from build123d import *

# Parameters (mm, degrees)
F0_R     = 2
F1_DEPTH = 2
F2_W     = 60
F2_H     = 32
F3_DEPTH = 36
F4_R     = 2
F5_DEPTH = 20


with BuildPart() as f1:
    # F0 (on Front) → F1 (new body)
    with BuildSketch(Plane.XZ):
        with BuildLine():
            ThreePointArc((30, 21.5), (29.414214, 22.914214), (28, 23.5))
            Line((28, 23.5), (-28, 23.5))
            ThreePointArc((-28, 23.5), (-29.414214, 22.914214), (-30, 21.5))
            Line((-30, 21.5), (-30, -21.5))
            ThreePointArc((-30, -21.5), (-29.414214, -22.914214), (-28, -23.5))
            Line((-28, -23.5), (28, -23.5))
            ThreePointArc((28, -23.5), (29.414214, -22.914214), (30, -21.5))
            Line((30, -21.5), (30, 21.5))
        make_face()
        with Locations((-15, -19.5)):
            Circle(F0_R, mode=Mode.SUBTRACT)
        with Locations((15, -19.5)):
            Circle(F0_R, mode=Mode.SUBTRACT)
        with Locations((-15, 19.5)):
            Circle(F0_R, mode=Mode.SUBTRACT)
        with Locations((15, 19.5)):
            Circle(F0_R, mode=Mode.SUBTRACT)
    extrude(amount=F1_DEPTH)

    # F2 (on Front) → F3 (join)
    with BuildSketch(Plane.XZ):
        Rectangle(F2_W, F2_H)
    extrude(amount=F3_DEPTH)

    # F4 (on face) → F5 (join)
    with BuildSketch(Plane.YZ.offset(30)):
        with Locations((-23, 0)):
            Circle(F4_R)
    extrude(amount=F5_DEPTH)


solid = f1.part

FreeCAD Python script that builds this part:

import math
import FreeCAD as App
import Part
import Sketcher

V = App.Vector


def add_polygon(sketch, points):
    """Adds a closed chain of lines whose ends are joined by coincident constraints."""
    first, n = sketch.GeometryCount, len(points)
    for a, b in zip(points, points[1:] + points[:1]):
        sketch.addGeometry(Part.LineSegment(App.Vector(*a, 0), App.Vector(*b, 0)), False)
    for i in range(n):
        sketch.addConstraint(Sketcher.Constraint("Coincident", first + i, 2, first + (i + 1) % n, 1))

doc = App.newDocument("Part")
body = doc.addObject("PartDesign::Body", "Body")

sketch1 = body.newObject("Sketcher::SketchObject", "Sketch")
sketch1.AttachmentSupport = (doc.getObject("XZ_Plane"), [""])
sketch1.MapMode = "FlatFace"
sketch1.addGeometry([
    Part.ArcOfCircle(Part.Circle(V(28.000001, 21.500001, 0), V(0, 0, 1), 1.999999), math.radians(-0.000043), math.radians(90.000043)),
    Part.LineSegment(V(28, 23.5, 0), V(-28, 23.5, 0)),
    Part.ArcOfCircle(Part.Circle(V(-28.000001, 21.500001, 0), V(0, 0, 1), 1.999999), math.radians(89.999957), math.radians(180.000043)),
    Part.LineSegment(V(-30, 21.5, 0), V(-30, -21.5, 0)),
    Part.ArcOfCircle(Part.Circle(V(-28.000001, -21.500001, 0), V(0, 0, 1), 1.999999), math.radians(179.999957), math.radians(270.000043)),
    Part.LineSegment(V(-28, -23.5, 0), V(28, -23.5, 0)),
    Part.ArcOfCircle(Part.Circle(V(28.000001, -21.500001, 0), V(0, 0, 1), 1.999999), math.radians(-90.000043), math.radians(0.000043)),
    Part.LineSegment(V(30, -21.5, 0), V(30, 21.5, 0)),
    Part.Circle(V(-15, -19.5, 0), V(0, 0, 1), 2),
    Part.Circle(V(15, -19.5, 0), V(0, 0, 1), 2),
    Part.Circle(V(-15, 19.5, 0), V(0, 0, 1), 2),
    Part.Circle(V(15, 19.5, 0), V(0, 0, 1), 2),
], False)
sketch1.addConstraint([
    Sketcher.Constraint("Tangent", 0, 2, 1, 1),
    Sketcher.Constraint("Tangent", 1, 2, 2, 1),
    Sketcher.Constraint("Tangent", 2, 2, 3, 1),
    Sketcher.Constraint("Tangent", 3, 2, 4, 1),
    Sketcher.Constraint("Tangent", 4, 2, 5, 1),
    Sketcher.Constraint("Tangent", 5, 2, 6, 1),
    Sketcher.Constraint("Tangent", 6, 2, 7, 1),
    Sketcher.Constraint("Tangent", 7, 2, 0, 1),
    Sketcher.Constraint("Horizontal", 1),
    Sketcher.Constraint("Vertical", 3),
    Sketcher.Constraint("Horizontal", 5),
    Sketcher.Constraint("Vertical", 7),
    Sketcher.Constraint("Equal", 0, 2),
    Sketcher.Constraint("Equal", 2, 4),
    Sketcher.Constraint("Equal", 4, 6),
    Sketcher.Constraint("Equal", 6, 8),
    Sketcher.Constraint("Equal", 8, 9),
    Sketcher.Constraint("Equal", 9, 10),
    Sketcher.Constraint("Equal", 10, 11),
    Sketcher.Constraint("Symmetric", 0, 3, 4, 3, -1, 1),
    Sketcher.Constraint("Symmetric", 9, 3, 10, 3, -1, 1),
    Sketcher.Constraint("Symmetric", 8, 3, 11, 3, -1, 1),
    Sketcher.Constraint("Symmetric", 8, 3, 9, 3, -2),
    Sketcher.Constraint("Diameter", 8, 4.0),
    Sketcher.Constraint("DistanceX", 1, 2, 1, 1, 56.0),
    Sketcher.Constraint("DistanceY", 3, 2, 3, 1, 43.0),
    Sketcher.Constraint("DistanceX", 8, 3, -1, 1, 15.0),
    Sketcher.Constraint("DistanceY", 4, 3, 8, 3, 2.000001),
])
pad1 = body.newObject("PartDesign::Pad", "Pad")
pad1.Profile = sketch1
pad1.Length = 2

sketch2 = body.newObject("Sketcher::SketchObject", "Sketch001")
sketch2.AttachmentSupport = (doc.getObject("XZ_Plane"), [""])
sketch2.MapMode = "FlatFace"
add_polygon(sketch2, [(-30, 16), (-30, -16), (30, -16), (30, 16)])
sketch2.addConstraint([
    Sketcher.Constraint("Vertical", 0),
    Sketcher.Constraint("Horizontal", 1),
    Sketcher.Constraint("Vertical", 2),
    Sketcher.Constraint("Horizontal", 3),
    Sketcher.Constraint("Symmetric", 0, 2, 2, 2, -1, 1),
    Sketcher.Constraint("DistanceX", 1, 1, 1, 2, 60.0),
    Sketcher.Constraint("DistanceY", 0, 2, 0, 1, 32.0),
])
pad2 = body.newObject("PartDesign::Pad", "Pad001")
pad2.Profile = sketch2
pad2.Length = 36

sketch3 = body.newObject("Sketcher::SketchObject", "Sketch002")
sketch3.AttachmentSupport = (doc.getObject("YZ_Plane"), [""])
sketch3.MapMode = "FlatFace"
sketch3.AttachmentOffset = App.Placement(V(0, 0, 30), App.Rotation())
sketch3.addGeometry(Part.Circle(V(-23, 0, 0), V(0, 0, 1), 2), False)
sketch3.addConstraint([
    Sketcher.Constraint("PointOnObject", 0, 3, -1),
    Sketcher.Constraint("Diameter", 0, 4.0),
    Sketcher.Constraint("DistanceX", 0, 3, -1, 1, 23.0),
])
pad3 = body.newObject("PartDesign::Pad", "Pad002")
pad3.Profile = sketch3
pad3.Length = 20

doc.recompute()
